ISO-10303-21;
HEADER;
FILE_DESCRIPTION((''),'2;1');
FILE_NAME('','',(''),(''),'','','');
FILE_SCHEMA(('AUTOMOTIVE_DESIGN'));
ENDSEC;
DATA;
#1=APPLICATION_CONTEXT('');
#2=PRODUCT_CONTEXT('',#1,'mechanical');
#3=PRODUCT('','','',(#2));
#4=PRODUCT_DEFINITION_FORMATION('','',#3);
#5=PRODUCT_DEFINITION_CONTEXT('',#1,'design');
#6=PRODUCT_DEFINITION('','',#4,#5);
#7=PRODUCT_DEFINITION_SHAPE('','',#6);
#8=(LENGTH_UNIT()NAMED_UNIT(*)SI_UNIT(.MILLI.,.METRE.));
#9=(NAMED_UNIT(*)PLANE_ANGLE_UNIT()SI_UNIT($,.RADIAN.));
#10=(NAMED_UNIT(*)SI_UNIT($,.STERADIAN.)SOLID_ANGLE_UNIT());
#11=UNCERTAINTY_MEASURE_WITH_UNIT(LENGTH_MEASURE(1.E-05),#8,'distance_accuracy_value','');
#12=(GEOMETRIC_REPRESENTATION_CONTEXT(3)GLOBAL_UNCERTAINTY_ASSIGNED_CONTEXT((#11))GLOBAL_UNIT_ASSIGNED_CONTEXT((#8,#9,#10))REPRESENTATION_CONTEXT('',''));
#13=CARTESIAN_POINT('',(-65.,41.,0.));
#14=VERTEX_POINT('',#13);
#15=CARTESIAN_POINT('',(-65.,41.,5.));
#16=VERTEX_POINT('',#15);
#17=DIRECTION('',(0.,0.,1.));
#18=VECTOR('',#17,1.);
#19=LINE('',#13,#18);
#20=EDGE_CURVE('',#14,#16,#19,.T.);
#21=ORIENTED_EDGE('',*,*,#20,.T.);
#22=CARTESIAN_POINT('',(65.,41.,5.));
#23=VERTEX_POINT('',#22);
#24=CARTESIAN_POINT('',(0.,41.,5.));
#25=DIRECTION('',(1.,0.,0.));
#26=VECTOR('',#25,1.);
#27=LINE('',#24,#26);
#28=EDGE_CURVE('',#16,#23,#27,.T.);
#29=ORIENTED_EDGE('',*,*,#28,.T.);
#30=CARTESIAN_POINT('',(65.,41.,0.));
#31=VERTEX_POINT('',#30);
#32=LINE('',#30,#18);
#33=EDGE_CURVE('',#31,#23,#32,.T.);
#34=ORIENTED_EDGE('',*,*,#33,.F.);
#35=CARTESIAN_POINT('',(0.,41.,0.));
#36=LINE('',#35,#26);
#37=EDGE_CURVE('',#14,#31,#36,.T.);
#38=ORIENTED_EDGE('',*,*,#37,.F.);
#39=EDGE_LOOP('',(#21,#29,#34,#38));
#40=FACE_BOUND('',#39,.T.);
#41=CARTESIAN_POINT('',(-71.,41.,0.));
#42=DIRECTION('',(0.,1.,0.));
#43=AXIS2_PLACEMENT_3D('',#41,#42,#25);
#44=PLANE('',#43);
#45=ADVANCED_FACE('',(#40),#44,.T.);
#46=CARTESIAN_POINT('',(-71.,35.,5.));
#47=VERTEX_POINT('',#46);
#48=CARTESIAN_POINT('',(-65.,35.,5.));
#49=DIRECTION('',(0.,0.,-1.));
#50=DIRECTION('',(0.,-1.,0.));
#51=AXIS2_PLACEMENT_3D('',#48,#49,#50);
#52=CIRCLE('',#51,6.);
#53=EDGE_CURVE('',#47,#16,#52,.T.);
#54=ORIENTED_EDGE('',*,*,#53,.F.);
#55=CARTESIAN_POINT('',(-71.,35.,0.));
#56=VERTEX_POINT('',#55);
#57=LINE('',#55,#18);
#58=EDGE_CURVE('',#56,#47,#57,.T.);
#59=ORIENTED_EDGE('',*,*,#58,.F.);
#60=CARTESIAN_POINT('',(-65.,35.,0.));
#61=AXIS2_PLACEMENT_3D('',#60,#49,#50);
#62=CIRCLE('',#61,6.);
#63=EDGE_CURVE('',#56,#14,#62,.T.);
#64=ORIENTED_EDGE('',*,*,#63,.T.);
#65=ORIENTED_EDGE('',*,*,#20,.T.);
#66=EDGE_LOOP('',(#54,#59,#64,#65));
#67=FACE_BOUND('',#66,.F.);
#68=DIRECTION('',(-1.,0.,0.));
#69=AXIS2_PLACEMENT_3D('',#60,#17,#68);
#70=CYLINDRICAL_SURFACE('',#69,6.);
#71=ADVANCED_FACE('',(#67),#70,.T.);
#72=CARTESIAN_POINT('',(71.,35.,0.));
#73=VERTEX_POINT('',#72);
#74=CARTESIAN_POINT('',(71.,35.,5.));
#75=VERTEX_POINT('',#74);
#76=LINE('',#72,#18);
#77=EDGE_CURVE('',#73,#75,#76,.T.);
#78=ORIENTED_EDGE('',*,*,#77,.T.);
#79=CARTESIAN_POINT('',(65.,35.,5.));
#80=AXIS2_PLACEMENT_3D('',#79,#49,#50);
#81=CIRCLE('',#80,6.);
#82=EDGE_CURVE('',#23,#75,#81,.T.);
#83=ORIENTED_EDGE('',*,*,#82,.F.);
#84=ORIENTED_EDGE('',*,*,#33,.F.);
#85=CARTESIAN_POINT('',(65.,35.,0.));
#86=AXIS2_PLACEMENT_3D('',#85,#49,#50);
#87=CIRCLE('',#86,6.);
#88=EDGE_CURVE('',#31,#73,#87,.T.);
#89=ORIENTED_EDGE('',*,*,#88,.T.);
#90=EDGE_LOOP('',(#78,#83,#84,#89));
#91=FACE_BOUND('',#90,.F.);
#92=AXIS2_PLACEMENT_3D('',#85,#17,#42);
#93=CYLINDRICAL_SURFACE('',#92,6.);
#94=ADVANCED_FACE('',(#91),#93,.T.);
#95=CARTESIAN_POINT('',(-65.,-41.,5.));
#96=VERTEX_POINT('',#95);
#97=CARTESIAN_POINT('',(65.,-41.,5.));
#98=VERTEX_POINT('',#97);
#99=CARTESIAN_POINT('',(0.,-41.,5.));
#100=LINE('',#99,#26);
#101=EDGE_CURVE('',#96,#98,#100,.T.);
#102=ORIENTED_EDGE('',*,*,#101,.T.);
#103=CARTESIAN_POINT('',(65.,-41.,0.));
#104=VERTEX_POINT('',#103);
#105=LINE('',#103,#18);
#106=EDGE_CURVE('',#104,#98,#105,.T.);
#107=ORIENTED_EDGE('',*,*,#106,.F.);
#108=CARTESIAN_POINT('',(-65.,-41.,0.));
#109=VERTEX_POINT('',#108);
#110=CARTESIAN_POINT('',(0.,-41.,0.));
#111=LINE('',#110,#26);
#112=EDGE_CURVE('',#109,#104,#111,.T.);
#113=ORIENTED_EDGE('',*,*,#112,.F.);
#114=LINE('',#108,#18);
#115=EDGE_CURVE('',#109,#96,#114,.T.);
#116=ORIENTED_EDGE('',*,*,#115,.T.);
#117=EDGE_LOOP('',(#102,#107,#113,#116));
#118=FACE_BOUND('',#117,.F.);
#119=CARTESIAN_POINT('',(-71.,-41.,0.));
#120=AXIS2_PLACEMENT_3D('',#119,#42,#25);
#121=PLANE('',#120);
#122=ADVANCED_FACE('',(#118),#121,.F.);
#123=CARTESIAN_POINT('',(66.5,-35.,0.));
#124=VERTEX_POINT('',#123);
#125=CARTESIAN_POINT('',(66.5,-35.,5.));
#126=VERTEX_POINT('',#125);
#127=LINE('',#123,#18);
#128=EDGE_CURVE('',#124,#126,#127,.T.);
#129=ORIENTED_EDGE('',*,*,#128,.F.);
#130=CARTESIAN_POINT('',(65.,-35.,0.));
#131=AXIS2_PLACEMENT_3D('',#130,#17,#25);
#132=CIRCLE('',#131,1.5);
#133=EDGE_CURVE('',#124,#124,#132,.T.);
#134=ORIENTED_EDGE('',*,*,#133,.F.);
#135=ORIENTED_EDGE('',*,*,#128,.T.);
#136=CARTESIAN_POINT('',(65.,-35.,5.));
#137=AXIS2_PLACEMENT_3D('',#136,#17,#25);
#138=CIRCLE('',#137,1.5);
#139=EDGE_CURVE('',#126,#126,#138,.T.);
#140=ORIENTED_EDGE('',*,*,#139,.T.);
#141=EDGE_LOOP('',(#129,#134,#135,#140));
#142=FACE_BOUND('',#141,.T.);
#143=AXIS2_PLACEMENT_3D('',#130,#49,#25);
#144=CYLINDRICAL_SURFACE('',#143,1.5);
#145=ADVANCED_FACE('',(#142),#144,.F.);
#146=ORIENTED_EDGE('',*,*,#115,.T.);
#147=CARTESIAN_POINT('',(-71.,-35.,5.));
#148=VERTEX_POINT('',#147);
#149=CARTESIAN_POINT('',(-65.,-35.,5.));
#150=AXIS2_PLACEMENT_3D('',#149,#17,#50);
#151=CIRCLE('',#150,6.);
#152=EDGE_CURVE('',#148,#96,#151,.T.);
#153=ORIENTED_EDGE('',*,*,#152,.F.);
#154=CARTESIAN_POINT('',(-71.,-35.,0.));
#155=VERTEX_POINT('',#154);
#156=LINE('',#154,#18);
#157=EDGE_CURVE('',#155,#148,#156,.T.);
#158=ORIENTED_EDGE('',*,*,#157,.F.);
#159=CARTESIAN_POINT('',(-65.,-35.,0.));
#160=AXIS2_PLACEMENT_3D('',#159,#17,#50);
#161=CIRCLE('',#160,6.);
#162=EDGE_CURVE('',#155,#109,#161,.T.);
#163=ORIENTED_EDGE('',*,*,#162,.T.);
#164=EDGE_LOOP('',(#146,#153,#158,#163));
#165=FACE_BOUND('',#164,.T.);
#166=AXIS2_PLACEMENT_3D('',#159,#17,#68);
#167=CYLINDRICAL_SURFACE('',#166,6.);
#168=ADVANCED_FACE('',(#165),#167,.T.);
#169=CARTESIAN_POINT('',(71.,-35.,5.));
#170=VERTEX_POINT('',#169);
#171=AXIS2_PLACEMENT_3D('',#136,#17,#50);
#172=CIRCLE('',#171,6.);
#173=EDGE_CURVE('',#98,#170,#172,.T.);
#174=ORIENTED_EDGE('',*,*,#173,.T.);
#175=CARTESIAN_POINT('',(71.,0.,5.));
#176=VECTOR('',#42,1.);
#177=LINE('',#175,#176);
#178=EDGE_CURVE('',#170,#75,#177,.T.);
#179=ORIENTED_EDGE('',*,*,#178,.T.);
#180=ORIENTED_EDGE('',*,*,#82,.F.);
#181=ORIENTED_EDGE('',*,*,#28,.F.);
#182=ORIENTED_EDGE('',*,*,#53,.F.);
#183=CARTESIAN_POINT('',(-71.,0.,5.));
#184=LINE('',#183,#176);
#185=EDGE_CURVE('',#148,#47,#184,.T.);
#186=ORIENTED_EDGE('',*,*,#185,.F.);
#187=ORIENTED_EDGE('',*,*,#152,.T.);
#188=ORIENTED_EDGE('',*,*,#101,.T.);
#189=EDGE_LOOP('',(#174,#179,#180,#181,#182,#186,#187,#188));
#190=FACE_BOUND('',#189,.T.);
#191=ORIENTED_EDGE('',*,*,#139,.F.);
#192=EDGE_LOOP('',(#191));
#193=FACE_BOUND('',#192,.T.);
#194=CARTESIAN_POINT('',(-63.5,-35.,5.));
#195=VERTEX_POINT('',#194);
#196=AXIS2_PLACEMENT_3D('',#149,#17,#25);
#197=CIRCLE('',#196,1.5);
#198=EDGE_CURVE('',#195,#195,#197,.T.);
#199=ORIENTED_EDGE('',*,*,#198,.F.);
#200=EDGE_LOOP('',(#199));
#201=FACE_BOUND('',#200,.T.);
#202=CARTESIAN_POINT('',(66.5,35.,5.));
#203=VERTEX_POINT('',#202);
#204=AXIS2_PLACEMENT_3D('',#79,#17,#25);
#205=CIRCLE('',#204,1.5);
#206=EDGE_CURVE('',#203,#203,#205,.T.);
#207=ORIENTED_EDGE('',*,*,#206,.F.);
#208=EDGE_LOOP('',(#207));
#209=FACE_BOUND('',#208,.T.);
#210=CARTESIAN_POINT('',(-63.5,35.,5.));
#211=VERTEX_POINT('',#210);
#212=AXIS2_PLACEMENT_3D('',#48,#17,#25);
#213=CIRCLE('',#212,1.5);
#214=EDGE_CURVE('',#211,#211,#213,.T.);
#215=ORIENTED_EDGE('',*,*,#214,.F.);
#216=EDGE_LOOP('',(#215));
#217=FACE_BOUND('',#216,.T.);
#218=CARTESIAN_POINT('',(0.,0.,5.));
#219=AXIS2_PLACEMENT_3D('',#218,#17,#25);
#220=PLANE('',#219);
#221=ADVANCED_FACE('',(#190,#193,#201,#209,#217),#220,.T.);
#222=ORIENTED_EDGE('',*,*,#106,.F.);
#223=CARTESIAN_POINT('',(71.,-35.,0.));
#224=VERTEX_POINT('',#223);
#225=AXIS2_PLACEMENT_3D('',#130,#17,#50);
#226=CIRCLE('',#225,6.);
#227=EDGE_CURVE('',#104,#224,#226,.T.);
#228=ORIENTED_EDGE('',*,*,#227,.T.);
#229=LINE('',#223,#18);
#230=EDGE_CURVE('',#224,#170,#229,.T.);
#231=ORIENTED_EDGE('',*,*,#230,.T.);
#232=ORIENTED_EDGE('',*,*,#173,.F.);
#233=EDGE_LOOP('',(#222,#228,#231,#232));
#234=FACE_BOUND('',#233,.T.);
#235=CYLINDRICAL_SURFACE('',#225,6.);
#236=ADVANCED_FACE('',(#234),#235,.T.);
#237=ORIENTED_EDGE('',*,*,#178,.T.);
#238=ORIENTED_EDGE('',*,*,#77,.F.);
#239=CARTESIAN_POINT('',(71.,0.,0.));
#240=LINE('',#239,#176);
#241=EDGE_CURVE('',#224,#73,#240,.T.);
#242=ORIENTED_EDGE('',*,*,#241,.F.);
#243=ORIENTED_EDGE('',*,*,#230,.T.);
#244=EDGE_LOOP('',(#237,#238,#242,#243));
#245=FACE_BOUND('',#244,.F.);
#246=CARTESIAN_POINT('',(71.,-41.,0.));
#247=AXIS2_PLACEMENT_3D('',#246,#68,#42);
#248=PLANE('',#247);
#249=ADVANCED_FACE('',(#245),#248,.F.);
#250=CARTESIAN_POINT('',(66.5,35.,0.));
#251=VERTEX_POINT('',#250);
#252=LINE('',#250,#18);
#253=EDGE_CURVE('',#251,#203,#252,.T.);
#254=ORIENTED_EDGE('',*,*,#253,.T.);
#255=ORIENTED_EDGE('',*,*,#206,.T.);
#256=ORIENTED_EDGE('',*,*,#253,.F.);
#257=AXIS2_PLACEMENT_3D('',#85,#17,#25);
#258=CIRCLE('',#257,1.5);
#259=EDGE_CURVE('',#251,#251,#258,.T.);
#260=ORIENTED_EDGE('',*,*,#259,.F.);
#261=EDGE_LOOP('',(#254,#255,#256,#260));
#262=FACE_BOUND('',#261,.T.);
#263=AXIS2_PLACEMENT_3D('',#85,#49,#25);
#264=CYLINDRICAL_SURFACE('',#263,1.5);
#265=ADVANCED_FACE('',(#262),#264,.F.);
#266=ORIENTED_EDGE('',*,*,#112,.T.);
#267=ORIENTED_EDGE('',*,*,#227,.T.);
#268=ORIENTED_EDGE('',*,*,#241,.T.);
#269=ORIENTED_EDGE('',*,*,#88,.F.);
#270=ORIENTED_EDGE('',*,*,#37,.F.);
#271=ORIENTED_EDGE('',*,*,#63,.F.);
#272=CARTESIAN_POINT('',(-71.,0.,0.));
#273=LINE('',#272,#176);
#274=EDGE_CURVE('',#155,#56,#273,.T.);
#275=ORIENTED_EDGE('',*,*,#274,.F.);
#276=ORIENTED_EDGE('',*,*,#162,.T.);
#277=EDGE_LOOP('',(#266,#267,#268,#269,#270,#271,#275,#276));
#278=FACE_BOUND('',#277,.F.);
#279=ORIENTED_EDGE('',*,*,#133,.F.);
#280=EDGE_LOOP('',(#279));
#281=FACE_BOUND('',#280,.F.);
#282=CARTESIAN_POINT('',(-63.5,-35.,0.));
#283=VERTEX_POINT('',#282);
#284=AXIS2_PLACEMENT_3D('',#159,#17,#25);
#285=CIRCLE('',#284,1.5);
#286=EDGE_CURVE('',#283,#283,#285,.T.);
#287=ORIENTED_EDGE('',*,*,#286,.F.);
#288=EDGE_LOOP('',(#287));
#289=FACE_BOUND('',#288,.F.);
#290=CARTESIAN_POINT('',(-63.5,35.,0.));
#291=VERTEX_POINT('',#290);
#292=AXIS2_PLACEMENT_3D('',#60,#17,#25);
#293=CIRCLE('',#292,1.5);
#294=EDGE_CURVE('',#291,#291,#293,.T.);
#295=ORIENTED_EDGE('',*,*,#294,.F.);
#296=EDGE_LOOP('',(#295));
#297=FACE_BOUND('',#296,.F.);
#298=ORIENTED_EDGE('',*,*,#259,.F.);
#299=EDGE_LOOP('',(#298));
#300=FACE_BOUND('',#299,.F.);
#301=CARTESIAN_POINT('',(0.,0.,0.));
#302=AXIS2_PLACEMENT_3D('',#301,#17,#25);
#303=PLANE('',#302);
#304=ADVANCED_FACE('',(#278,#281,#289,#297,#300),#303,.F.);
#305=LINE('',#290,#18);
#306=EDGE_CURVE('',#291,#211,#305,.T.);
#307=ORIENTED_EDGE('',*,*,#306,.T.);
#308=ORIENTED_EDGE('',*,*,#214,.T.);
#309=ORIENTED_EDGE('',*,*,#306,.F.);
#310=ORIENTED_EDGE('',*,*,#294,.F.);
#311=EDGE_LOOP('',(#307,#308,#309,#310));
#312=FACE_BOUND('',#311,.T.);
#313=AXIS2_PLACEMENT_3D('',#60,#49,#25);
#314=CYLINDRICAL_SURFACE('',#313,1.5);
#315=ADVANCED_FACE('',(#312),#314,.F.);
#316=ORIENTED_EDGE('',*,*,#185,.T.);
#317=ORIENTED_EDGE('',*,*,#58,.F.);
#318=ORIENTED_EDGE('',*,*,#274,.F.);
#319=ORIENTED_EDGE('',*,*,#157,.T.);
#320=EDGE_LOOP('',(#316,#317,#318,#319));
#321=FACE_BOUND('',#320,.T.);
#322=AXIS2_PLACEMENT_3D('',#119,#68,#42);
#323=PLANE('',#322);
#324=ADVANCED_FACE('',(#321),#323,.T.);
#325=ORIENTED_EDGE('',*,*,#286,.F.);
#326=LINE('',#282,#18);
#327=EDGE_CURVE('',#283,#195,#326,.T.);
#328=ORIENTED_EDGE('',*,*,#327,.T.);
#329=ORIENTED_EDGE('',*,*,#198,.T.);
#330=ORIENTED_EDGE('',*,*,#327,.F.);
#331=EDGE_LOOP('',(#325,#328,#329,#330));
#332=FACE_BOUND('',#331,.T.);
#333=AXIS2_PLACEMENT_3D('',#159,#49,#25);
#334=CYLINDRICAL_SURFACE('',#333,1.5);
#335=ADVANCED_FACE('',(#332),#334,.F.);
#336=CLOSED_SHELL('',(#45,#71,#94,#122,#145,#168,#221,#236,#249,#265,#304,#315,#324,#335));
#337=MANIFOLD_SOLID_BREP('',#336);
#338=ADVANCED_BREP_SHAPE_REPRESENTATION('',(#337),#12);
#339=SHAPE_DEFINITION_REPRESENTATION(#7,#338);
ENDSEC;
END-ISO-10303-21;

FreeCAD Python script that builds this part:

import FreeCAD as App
import Part
import Sketcher
Q = App.Units.Quantity


def edges_at(feature, points):
    """Names of the edges that pass closest to the given points."""
    edges = feature.Shape.Edges
    near = lambda p: min(range(len(edges)), key=lambda i: edges[i].distToShape(Part.Vertex(*p))[0])
    return sorted({f"Edge{near(p) + 1}" for p in points})

doc = App.newDocument("Part")
body = doc.addObject("PartDesign::Body", "Body")

# Sketch on XY plane
sketch1 = body.newObject("Sketcher::SketchObject", "Sketch")
sketch1.AttachmentSupport = (doc.getObject("XY_Plane"), [""])
sketch1.MapMode = "FlatFace"
sketch1.addGeometry(Part.LineSegment(App.Vector(-71, 41, 0), App.Vector(-71, -41, 0)), False)
sketch1.addGeometry(Part.LineSegment(App.Vector(-71, -41, 0), App.Vector(71, -41, 0)), False)
sketch1.addGeometry(Part.LineSegment(App.Vector(71, -41, 0), App.Vector(71, 41, 0)), False)
sketch1.addGeometry(Part.LineSegment(App.Vector(71, 41, 0), App.Vector(-71, 41, 0)), False)
sketch1.addGeometry(Part.Circle(App.Vector(-65, -35, 0), App.Vector(0, 0, 1), 1.5), False)
sketch1.addGeometry(Part.Circle(App.Vector(65, -35, 0), App.Vector(0, 0, 1), 1.5), False)
sketch1.addGeometry(Part.Circle(App.Vector(-65, 35, 0), App.Vector(0, 0, 1), 1.5), False)
sketch1.addGeometry(Part.Circle(App.Vector(65, 35, 0), App.Vector(0, 0, 1), 1.5), False)
sketch1.addConstraint(Sketcher.Constraint("Coincident", 0, 2, 1, 1))
sketch1.addConstraint(Sketcher.Constraint("Coincident", 1, 2, 2, 1))
sketch1.addConstraint(Sketcher.Constraint("Coincident", 2, 2, 3, 1))
sketch1.addConstraint(Sketcher.Constraint("Coincident", 3, 2, 0, 1))
sketch1.addConstraint(Sketcher.Constraint("Vertical", 0))
sketch1.addConstraint(Sketcher.Constraint("Horizontal", 1))
sketch1.addConstraint(Sketcher.Constraint("Vertical", 2))
sketch1.addConstraint(Sketcher.Constraint("Horizontal", 3))
sketch1.addConstraint(Sketcher.Constraint("Equal", 4, 5))
sketch1.addConstraint(Sketcher.Constraint("Equal", 5, 6))
sketch1.addConstraint(Sketcher.Constraint("Equal", 6, 7))
sketch1.addConstraint(Sketcher.Constraint("Symmetric", 5, 3, 6, 3, -1, 1))
sketch1.addConstraint(Sketcher.Constraint("Symmetric", 4, 3, 7, 3, -1, 1))
sketch1.addConstraint(Sketcher.Constraint("Symmetric", 0, 2, 2, 2, -1, 1))
sketch1.addConstraint(Sketcher.Constraint("Symmetric", 4, 3, 5, 3, -2))
sketch1.addConstraint(Sketcher.Constraint("Diameter", 4, Q("3 mm")))
sketch1.addConstraint(Sketcher.Constraint("DistanceX", 1, 1, 1, 2, Q("142 mm")))
sketch1.addConstraint(Sketcher.Constraint("DistanceY", 0, 2, 0, 1, Q("82 mm")))
sketch1.addConstraint(Sketcher.Constraint("DistanceX", 4, 3, -1, 1, Q("65 mm")))
sketch1.addConstraint(Sketcher.Constraint("DistanceY", 4, 3, -1, 1, Q("35 mm")))
pad1 = body.newObject("PartDesign::Pad", "Pad")
pad1.Profile = sketch1
pad1.Length = 5
doc.recompute()

fillet = body.newObject("PartDesign::Fillet", "Fillet")
fillet.Base = (pad1, edges_at(pad1, [
    (-71, -41, 2.5),
    (-71, 41, 2.5),
    (71, 41, 2.5),
    (71, -41, 2.5),
]))
fillet.Radius = 6

doc.recompute()
